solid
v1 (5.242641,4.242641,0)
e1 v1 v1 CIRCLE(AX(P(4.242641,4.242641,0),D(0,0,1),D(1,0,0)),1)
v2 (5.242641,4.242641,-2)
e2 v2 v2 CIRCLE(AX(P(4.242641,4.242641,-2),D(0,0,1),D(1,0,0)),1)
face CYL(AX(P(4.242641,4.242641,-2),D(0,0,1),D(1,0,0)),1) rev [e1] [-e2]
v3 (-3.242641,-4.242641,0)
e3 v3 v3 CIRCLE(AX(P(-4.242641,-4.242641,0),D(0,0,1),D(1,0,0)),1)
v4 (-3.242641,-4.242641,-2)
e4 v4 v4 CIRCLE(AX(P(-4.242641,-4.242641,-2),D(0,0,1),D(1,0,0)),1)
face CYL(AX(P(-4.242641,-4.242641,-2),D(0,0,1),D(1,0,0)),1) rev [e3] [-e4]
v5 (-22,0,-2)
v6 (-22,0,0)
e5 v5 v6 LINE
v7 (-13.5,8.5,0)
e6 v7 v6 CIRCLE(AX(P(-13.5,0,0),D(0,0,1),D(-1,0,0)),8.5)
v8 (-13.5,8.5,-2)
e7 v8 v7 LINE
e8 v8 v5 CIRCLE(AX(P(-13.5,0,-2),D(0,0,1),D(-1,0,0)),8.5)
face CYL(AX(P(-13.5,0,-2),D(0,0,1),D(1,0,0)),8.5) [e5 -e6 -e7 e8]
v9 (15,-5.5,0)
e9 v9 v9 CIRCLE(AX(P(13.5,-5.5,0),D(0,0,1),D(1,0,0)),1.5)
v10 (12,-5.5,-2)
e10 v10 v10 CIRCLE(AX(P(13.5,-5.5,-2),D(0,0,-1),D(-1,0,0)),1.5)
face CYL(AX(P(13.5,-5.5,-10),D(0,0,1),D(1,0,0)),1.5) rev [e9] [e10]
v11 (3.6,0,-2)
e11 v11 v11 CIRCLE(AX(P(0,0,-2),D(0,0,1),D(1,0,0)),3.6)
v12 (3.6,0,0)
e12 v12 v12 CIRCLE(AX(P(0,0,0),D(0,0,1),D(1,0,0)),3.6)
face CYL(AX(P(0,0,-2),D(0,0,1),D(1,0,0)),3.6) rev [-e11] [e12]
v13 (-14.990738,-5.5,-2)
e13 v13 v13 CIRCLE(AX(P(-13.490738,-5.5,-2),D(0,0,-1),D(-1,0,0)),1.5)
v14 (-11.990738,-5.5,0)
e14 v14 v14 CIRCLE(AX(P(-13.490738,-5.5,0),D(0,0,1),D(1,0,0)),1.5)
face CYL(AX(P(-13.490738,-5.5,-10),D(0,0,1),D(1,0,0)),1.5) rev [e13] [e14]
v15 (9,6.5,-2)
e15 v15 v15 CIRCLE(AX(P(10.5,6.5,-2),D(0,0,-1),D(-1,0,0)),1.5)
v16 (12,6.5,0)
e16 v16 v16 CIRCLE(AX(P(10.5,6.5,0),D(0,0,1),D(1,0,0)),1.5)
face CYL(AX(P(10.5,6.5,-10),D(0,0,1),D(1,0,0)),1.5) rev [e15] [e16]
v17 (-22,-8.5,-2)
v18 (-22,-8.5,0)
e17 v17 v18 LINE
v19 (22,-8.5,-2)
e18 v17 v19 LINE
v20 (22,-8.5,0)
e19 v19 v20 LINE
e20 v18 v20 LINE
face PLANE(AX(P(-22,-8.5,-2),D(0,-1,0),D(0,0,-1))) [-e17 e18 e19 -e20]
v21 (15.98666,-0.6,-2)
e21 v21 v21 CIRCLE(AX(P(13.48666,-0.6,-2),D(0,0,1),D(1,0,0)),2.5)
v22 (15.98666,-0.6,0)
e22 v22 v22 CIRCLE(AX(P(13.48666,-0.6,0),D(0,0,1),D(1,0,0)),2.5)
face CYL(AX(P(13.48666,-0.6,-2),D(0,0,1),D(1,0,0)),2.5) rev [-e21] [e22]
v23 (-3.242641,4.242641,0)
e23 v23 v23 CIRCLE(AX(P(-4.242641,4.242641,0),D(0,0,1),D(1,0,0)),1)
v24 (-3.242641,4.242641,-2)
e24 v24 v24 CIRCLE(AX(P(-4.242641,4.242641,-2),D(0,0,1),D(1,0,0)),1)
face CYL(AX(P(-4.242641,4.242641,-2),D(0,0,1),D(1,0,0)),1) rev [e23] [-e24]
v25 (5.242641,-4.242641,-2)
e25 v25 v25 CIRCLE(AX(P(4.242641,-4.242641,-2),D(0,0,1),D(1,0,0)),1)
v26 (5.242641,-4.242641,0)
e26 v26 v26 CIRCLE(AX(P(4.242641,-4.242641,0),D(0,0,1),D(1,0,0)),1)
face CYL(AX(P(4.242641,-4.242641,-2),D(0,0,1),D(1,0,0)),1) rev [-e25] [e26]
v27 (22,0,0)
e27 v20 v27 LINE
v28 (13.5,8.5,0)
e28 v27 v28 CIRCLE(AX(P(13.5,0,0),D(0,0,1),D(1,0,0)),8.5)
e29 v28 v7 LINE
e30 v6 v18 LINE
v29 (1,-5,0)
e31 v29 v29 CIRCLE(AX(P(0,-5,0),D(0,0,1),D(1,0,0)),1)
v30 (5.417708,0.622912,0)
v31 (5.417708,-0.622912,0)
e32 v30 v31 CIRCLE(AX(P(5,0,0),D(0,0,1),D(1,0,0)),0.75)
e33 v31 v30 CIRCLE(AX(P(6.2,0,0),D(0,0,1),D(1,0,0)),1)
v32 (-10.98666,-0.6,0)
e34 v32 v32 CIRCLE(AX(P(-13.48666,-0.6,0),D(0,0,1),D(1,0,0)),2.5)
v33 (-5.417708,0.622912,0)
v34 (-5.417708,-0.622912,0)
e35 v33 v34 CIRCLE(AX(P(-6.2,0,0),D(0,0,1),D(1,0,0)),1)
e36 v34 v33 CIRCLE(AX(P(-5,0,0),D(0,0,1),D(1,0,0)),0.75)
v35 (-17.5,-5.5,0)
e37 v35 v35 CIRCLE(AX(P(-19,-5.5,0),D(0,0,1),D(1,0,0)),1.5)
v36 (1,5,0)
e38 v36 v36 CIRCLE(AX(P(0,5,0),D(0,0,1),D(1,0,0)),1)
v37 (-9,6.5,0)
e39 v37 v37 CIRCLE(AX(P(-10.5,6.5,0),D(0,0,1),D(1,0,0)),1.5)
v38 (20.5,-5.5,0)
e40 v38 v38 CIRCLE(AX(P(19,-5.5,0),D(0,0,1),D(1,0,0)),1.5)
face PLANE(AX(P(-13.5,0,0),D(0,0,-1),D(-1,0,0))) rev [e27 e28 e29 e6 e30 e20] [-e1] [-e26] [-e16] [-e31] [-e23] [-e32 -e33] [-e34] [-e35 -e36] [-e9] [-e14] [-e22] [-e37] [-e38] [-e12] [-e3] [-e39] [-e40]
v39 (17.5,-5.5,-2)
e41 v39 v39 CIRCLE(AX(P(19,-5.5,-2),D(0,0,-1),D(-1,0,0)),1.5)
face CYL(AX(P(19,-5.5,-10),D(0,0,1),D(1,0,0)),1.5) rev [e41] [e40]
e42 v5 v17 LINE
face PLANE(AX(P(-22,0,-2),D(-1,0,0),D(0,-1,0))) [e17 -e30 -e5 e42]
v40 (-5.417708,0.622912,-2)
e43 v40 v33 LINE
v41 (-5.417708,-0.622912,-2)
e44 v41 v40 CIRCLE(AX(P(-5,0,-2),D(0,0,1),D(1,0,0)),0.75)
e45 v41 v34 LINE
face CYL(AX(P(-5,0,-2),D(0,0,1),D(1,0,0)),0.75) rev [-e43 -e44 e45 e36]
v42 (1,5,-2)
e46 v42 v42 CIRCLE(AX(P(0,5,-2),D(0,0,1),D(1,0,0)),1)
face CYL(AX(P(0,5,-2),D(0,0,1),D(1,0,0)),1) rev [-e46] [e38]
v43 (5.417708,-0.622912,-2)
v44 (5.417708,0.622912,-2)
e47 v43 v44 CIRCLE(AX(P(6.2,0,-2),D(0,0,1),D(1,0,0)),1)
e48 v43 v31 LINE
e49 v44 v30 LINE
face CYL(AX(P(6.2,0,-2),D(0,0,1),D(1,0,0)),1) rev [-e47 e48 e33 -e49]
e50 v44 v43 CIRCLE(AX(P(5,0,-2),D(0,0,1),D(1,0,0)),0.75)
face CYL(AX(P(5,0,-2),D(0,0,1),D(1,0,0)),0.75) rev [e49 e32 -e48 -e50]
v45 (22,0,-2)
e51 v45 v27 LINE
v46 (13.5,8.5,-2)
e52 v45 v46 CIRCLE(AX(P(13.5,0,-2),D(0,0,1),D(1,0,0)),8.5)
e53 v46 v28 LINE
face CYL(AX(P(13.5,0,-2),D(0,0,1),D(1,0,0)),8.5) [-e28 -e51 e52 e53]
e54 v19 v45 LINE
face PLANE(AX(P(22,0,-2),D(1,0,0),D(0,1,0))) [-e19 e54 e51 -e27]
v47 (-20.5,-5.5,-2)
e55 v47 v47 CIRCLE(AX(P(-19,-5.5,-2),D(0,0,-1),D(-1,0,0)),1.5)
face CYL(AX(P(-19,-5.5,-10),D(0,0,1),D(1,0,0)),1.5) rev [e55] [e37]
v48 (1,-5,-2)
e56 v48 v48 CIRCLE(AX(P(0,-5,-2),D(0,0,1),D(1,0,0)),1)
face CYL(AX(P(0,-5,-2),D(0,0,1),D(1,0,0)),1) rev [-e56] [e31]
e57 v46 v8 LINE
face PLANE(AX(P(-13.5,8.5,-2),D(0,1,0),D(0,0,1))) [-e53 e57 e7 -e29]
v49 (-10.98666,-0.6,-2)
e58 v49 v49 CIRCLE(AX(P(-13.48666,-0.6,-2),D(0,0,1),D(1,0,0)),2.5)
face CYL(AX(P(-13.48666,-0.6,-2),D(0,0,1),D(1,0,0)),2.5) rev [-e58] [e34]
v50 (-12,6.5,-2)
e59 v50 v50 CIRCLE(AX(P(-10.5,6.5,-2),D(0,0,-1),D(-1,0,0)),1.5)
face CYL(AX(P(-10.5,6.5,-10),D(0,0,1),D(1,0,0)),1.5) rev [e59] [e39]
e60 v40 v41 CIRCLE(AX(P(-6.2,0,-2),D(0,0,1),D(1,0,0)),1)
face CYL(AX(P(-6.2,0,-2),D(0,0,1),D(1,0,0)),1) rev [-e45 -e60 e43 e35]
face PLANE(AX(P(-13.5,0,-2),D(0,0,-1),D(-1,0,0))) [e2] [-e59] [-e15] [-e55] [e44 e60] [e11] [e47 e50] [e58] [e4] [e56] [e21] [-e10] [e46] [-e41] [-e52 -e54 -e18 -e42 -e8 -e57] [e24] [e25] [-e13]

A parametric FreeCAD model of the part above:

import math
import FreeCAD as App
import Part
import Sketcher

V = App.Vector

doc = App.newDocument("Part")
body = doc.addObject("PartDesign::Body", "Body")

# Sketch on XY plane
sketch1 = body.newObject("Sketcher::SketchObject", "Sketch")
sketch1.AttachmentSupport = (doc.getObject("XY_Plane"), [""])
sketch1.MapMode = "FlatFace"
sketch1.addGeometry([
    Part.LineSegment(V(14, 8, 0), V(-14, 8, 0)),  # 0
    Part.ArcOfCircle(Part.Circle(V(-14, 0, 0), V(0, 0, 1), 8), math.radians(90), math.radians(180)),  # 1
    Part.LineSegment(V(-22, 0, 0), V(-22, -8, 0)),  # 2
    Part.LineSegment(V(-22, -8, 0), V(22, -8, 0)),  # 3
    Part.LineSegment(V(22, -8, 0), V(22, 0, 0)),  # 4
    Part.ArcOfCircle(Part.Circle(V(14, 0, 0), V(0, 0, 1), 8), math.radians(0), math.radians(90)),  # 5
], False)
sketch1.addConstraint([
    Sketcher.Constraint("Tangent", 0, 2, 1, 1),
    Sketcher.Constraint("Tangent", 1, 2, 2, 1),
    Sketcher.Constraint("Coincident", 2, 2, 3, 1),
    Sketcher.Constraint("Coincident", 3, 2, 4, 1),
    Sketcher.Constraint("Tangent", 4, 2, 5, 1),
    Sketcher.Constraint("Tangent", 5, 2, 0, 1),
    Sketcher.Constraint("Horizontal", 0),
    Sketcher.Constraint("Vertical", 2),
    Sketcher.Constraint("Horizontal", 3),
    Sketcher.Constraint("Vertical", 4),
    Sketcher.Constraint("Equal", 1, 5),
    Sketcher.Constraint("Symmetric", 1, 3, 5, 3, -1, 1),
    Sketcher.Constraint("Radius", 1, 8.5),
    Sketcher.Constraint("DistanceX", 0, 2, 0, 1, 27.0),
    Sketcher.Constraint("DistanceY", 2, 2, 2, 1, 8.5),
])
pad1 = body.newObject("PartDesign::Pad", "Pad")
pad1.Profile = sketch1
pad1.Length = 2
pad1.Reversed = True

# Sketch on XY plane
sketch2 = body.newObject("Sketcher::SketchObject", "Sketch001")
sketch2.AttachmentSupport = (doc.getObject("XY_Plane"), [""])
sketch2.MapMode = "FlatFace"
sketch2.addGeometry([
    Part.Circle(V(0, 5, 0), V(0, 0, 1), 1),  # 0
    Part.Circle(V(0, -5, 0), V(0, 0, 1), 1),  # 1
    Part.Circle(V(0, 0, 0), V(0, 0, 1), 3.6),  # 2
    Part.Circle(V(-4.2, 4.2, 0), V(0, 0, 1), 1),  # 3
    Part.Circle(V(4.2, 4.2, 0), V(0, 0, 1), 1),  # 4
    Part.Circle(V(-4.2, -4.2, 0), V(0, 0, 1), 1),  # 5
    Part.Circle(V(4.2, -4.2, 0), V(0, 0, 1), 1),  # 6
    Part.ArcOfCircle(Part.Circle(V(-5, 0, 0), V(0, 0, 1), 0.8), math.radians(-124), math.radians(124)),  # 7
    Part.ArcOfCircle(Part.Circle(V(-6.2, 0, 0), V(0, 0, 1), 1), math.radians(39), math.radians(321)),  # 8
    Part.ArcOfCircle(Part.Circle(V(5, 0, 0), V(0, 0, 1), 0.8), math.radians(56), math.radians(304)),  # 9
    Part.ArcOfCircle(Part.Circle(V(6.2, 0, 0), V(0, 0, 1), 1), math.radians(-141), math.radians(141)),  # 10
], False)
sketch2.addConstraint([
    Sketcher.Constraint("Coincident", 7, 1, 8, 2),
    Sketcher.Constraint("Coincident", 8, 1, 7, 2),
    Sketcher.Constraint("Coincident", 9, 1, 10, 2),
    Sketcher.Constraint("Coincident", 10, 1, 9, 2),
    Sketcher.Constraint("Coincident", 2, 3, -1, 1),
    Sketcher.Constraint("Equal", 0, 1),
    Sketcher.Constraint("Equal", 1, 3),
    Sketcher.Constraint("Equal", 3, 4),
    Sketcher.Constraint("Equal", 4, 5),
    Sketcher.Constraint("Equal", 5, 6),
    Sketcher.Constraint("Equal", 6, 8),
    Sketcher.Constraint("Equal", 7, 9),
    Sketcher.Constraint("Equal", 8, 10),
    Sketcher.Constraint("Symmetric", 0, 3, 1, 3, -1, 1),
    Sketcher.Constraint("Symmetric", 4, 3, 5, 3, -1, 1),
    Sketcher.Constraint("Symmetric", 3, 3, 6, 3, -1, 1),
    Sketcher.Constraint("Symmetric", 7, 3, 9, 3, -1, 1),
    Sketcher.Constraint("Symmetric", 8, 3, 10, 3, -1, 1),
    Sketcher.Constraint("Symmetric", 3, 3, 4, 3, -2),
    Sketcher.Constraint("Symmetric", 8, 1, 9, 1, -2),
    Sketcher.Constraint("PointOnObject", 0, 3, -2),
    Sketcher.Constraint("Diameter", 0, 2.0),
    Sketcher.Constraint("Diameter", 2, 7.2),
    Sketcher.Constraint("Radius", 7, 0.75),
    Sketcher.Constraint("DistanceY", -1, 1, 0, 3, 5.0),
    Sketcher.Constraint("DistanceX", 7, 3, -1, 1, 5.0),
    Sketcher.Constraint("DistanceX", 8, 3, -1, 1, 6.2),
    Sketcher.Constraint("DistanceX", 3, 3, -1, 1, 4.242641),
    Sketcher.Constraint("DistanceY", -1, 1, 3, 3, 4.242641),
])
pocket1 = body.newObject("PartDesign::Pocket", "Pocket")
pocket1.Profile = sketch2
pocket1.Length = 2

# Sketch on XY plane
sketch3 = body.newObject("Sketcher::SketchObject", "Sketch002")
sketch3.AttachmentSupport = (doc.getObject("XY_Plane"), [""])
sketch3.MapMode = "FlatFace"
sketch3.addGeometry([
    Part.Circle(V(-13.5, -0.6, 0), V(0, 0, 1), 2.5),
    Part.Circle(V(13.5, -0.6, 0), V(0, 0, 1), 2.5),
], False)
sketch3.addConstraint([
    Sketcher.Constraint("Equal", 0, 1),
    Sketcher.Constraint("Symmetric", 0, 3, 1, 3, -2),
    Sketcher.Constraint("Diameter", 0, 5.0),
    Sketcher.Constraint("DistanceY", 0, 3, -1, 1, 0.6),
    Sketcher.Constraint("DistanceX", 0, 3, -1, 1, 13.48666),
])
pocket2 = body.newObject("PartDesign::Pocket", "Pocket001")
pocket2.Profile = sketch3
pocket2.Length = 2

# Sketch on XY plane
sketch4 = body.newObject("Sketcher::SketchObject", "Sketch003")
sketch4.AttachmentSupport = (doc.getObject("XY_Plane"), [""])
sketch4.MapMode = "FlatFace"
sketch4.addGeometry([
    Part.Circle(V(-19, -5.5, 0), V(0, 0, 1), 1.5),  # 0
    Part.Circle(V(19, -5.5, 0), V(0, 0, 1), 1.5),  # 1
    Part.Circle(V(-10.5, 6.5, 0), V(0, 0, 1), 1.5),  # 2
    Part.Circle(V(10.5, 6.5, 0), V(0, 0, 1), 1.5),  # 3
    Part.Circle(V(-13.5, -5.5, 0), V(0, 0, 1), 1.5),  # 4
    Part.Circle(V(13.5, -5.5, 0), V(0, 0, 1), 1.5),  # 5
], False)
sketch4.addConstraint([
    Sketcher.Constraint("Equal", 0, 1),
    Sketcher.Constraint("Equal", 1, 2),
    Sketcher.Constraint("Equal", 2, 3),
    Sketcher.Constraint("Equal", 3, 4),
    Sketcher.Constraint("Equal", 4, 5),
    Sketcher.Constraint("Symmetric", 0, 3, 1, 3, -2),
    Sketcher.Constraint("Symmetric", 2, 3, 3, 3, -2),
    Sketcher.Constraint("Horizontal", 1, 3, 4, 3),
    Sketcher.Constraint("Horizontal", 4, 3, 5, 3),
    Sketcher.Constraint("Diameter", 0, 3.0),
    Sketcher.Constraint("DistanceX", 0, 3, -1, 1, 19.0),
    Sketcher.Constraint("DistanceY", 0, 3, 2, 3, 12.0),
    Sketcher.Constraint("DistanceX", 2, 3, 3, 3, 21.0),
    Sketcher.Constraint("DistanceX", 3, 3, 5, 3, 3.0),
    Sketcher.Constraint("DistanceY", 0, 3, -1, 1, 5.5),
    Sketcher.Constraint("DistanceX", 4, 3, -1, 1, 13.490738),
])
pocket3 = body.newObject("PartDesign::Pocket", "Pocket002")
pocket3.Profile = sketch4
pocket3.Length = 10

doc.recompute()
